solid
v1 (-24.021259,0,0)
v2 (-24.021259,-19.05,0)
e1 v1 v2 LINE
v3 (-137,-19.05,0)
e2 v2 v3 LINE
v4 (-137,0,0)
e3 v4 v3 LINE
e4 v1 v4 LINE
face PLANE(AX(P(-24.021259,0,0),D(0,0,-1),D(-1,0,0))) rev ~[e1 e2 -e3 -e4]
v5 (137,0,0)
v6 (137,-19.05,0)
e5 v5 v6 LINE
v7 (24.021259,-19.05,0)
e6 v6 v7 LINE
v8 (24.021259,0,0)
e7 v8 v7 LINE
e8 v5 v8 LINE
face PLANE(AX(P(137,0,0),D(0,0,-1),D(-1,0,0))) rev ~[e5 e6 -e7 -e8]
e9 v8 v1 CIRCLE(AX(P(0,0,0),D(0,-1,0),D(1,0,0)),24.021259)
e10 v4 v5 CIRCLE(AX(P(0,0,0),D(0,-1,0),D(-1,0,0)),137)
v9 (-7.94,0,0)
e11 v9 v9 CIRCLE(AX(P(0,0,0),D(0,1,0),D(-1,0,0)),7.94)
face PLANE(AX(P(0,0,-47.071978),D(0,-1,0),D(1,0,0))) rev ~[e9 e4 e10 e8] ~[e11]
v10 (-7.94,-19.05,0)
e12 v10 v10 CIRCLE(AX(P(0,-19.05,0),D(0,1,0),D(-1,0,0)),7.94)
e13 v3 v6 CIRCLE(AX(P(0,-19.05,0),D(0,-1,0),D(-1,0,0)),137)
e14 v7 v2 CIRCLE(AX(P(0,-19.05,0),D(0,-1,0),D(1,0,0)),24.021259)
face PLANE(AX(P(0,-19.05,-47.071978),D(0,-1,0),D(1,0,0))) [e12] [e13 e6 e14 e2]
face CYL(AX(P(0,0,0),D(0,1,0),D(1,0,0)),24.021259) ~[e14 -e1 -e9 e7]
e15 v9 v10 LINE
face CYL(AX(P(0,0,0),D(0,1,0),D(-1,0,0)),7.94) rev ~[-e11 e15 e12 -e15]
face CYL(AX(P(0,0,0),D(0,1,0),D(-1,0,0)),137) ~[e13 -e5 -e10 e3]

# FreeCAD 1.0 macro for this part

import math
import FreeCAD as App
import Part
import Sketcher

V = App.Vector

doc = App.newDocument("Part")
params = doc.addObject("Spreadsheet::Sheet", "Params")
for row, (alias, value) in enumerate([
    ("sketch1_radius", "137 mm"),
    ("sketch1_diameter", "15.88 mm"),
    ("pad1_length", "19.05 mm"),
], start=1):
    params.set(f"A{row}", alias)
    params.set(f"B{row}", "=" + value)
    params.setAlias(f"B{row}", alias)

body = doc.addObject("PartDesign::Body", "Body")

sketch1 = doc.addObject("Sketcher::SketchObject", "Sketch")
body.addObject(sketch1)
sketch1.AttachmentSupport = (doc.XZ_Plane, [""])
sketch1.MapMode = "FlatFace"
sketch1.addGeometry([
    Part.ArcOfCircle(Part.Circle(V(0, 0, 0), V(0, 0, 1), 137), math.radians(180), math.radians(360)),
    Part.LineSegment(V(137, 0, 0), V(24.021259, 0, 0)),
    Part.ArcOfCircle(Part.Circle(V(0, 0, 0), V(0, 0, 1), 24.021259), math.radians(0), math.radians(180)),
    Part.LineSegment(V(-24.021259, 0, 0), V(-137, 0, 0)),
    Part.Circle(V(0, 0, 0), V(0, 0, 1), 7.94),
], False)
sketch1.addConstraint([
    Sketcher.Constraint("Coincident", 0, 2, 1, 1),
    Sketcher.Constraint("Coincident", 1, 2, 2, 1),
    Sketcher.Constraint("Coincident", 2, 2, 3, 1),
    Sketcher.Constraint("Coincident", 3, 2, 0, 1),
    Sketcher.Constraint("Horizontal", 1),
    Sketcher.Constraint("Horizontal", 3),
    Sketcher.Constraint("Coincident", 0, 3, -1, 1),
    Sketcher.Constraint("Coincident", 2, 3, -1, 1),
    Sketcher.Constraint("Coincident", 4, 3, -1, 1),
    Sketcher.Constraint("PointOnObject", 0, 2, -1),
    Sketcher.Constraint("PointOnObject", 2, 2, -1),
    Sketcher.Constraint("Radius", 0, 137.0),
    Sketcher.Constraint("Diameter", 4, 15.88),
    Sketcher.Constraint("Radius", 2, 24.021259),
])
sketch1.setExpression("Constraints[11]", "Params.sketch1_radius")
sketch1.setExpression("Constraints[12]", "Params.sketch1_diameter")
pad1 = doc.addObject("PartDesign::Pad", "Pad")
body.addObject(pad1)
pad1.Profile = sketch1
pad1.setExpression("Length", "Params.pad1_length")

doc.recompute()
